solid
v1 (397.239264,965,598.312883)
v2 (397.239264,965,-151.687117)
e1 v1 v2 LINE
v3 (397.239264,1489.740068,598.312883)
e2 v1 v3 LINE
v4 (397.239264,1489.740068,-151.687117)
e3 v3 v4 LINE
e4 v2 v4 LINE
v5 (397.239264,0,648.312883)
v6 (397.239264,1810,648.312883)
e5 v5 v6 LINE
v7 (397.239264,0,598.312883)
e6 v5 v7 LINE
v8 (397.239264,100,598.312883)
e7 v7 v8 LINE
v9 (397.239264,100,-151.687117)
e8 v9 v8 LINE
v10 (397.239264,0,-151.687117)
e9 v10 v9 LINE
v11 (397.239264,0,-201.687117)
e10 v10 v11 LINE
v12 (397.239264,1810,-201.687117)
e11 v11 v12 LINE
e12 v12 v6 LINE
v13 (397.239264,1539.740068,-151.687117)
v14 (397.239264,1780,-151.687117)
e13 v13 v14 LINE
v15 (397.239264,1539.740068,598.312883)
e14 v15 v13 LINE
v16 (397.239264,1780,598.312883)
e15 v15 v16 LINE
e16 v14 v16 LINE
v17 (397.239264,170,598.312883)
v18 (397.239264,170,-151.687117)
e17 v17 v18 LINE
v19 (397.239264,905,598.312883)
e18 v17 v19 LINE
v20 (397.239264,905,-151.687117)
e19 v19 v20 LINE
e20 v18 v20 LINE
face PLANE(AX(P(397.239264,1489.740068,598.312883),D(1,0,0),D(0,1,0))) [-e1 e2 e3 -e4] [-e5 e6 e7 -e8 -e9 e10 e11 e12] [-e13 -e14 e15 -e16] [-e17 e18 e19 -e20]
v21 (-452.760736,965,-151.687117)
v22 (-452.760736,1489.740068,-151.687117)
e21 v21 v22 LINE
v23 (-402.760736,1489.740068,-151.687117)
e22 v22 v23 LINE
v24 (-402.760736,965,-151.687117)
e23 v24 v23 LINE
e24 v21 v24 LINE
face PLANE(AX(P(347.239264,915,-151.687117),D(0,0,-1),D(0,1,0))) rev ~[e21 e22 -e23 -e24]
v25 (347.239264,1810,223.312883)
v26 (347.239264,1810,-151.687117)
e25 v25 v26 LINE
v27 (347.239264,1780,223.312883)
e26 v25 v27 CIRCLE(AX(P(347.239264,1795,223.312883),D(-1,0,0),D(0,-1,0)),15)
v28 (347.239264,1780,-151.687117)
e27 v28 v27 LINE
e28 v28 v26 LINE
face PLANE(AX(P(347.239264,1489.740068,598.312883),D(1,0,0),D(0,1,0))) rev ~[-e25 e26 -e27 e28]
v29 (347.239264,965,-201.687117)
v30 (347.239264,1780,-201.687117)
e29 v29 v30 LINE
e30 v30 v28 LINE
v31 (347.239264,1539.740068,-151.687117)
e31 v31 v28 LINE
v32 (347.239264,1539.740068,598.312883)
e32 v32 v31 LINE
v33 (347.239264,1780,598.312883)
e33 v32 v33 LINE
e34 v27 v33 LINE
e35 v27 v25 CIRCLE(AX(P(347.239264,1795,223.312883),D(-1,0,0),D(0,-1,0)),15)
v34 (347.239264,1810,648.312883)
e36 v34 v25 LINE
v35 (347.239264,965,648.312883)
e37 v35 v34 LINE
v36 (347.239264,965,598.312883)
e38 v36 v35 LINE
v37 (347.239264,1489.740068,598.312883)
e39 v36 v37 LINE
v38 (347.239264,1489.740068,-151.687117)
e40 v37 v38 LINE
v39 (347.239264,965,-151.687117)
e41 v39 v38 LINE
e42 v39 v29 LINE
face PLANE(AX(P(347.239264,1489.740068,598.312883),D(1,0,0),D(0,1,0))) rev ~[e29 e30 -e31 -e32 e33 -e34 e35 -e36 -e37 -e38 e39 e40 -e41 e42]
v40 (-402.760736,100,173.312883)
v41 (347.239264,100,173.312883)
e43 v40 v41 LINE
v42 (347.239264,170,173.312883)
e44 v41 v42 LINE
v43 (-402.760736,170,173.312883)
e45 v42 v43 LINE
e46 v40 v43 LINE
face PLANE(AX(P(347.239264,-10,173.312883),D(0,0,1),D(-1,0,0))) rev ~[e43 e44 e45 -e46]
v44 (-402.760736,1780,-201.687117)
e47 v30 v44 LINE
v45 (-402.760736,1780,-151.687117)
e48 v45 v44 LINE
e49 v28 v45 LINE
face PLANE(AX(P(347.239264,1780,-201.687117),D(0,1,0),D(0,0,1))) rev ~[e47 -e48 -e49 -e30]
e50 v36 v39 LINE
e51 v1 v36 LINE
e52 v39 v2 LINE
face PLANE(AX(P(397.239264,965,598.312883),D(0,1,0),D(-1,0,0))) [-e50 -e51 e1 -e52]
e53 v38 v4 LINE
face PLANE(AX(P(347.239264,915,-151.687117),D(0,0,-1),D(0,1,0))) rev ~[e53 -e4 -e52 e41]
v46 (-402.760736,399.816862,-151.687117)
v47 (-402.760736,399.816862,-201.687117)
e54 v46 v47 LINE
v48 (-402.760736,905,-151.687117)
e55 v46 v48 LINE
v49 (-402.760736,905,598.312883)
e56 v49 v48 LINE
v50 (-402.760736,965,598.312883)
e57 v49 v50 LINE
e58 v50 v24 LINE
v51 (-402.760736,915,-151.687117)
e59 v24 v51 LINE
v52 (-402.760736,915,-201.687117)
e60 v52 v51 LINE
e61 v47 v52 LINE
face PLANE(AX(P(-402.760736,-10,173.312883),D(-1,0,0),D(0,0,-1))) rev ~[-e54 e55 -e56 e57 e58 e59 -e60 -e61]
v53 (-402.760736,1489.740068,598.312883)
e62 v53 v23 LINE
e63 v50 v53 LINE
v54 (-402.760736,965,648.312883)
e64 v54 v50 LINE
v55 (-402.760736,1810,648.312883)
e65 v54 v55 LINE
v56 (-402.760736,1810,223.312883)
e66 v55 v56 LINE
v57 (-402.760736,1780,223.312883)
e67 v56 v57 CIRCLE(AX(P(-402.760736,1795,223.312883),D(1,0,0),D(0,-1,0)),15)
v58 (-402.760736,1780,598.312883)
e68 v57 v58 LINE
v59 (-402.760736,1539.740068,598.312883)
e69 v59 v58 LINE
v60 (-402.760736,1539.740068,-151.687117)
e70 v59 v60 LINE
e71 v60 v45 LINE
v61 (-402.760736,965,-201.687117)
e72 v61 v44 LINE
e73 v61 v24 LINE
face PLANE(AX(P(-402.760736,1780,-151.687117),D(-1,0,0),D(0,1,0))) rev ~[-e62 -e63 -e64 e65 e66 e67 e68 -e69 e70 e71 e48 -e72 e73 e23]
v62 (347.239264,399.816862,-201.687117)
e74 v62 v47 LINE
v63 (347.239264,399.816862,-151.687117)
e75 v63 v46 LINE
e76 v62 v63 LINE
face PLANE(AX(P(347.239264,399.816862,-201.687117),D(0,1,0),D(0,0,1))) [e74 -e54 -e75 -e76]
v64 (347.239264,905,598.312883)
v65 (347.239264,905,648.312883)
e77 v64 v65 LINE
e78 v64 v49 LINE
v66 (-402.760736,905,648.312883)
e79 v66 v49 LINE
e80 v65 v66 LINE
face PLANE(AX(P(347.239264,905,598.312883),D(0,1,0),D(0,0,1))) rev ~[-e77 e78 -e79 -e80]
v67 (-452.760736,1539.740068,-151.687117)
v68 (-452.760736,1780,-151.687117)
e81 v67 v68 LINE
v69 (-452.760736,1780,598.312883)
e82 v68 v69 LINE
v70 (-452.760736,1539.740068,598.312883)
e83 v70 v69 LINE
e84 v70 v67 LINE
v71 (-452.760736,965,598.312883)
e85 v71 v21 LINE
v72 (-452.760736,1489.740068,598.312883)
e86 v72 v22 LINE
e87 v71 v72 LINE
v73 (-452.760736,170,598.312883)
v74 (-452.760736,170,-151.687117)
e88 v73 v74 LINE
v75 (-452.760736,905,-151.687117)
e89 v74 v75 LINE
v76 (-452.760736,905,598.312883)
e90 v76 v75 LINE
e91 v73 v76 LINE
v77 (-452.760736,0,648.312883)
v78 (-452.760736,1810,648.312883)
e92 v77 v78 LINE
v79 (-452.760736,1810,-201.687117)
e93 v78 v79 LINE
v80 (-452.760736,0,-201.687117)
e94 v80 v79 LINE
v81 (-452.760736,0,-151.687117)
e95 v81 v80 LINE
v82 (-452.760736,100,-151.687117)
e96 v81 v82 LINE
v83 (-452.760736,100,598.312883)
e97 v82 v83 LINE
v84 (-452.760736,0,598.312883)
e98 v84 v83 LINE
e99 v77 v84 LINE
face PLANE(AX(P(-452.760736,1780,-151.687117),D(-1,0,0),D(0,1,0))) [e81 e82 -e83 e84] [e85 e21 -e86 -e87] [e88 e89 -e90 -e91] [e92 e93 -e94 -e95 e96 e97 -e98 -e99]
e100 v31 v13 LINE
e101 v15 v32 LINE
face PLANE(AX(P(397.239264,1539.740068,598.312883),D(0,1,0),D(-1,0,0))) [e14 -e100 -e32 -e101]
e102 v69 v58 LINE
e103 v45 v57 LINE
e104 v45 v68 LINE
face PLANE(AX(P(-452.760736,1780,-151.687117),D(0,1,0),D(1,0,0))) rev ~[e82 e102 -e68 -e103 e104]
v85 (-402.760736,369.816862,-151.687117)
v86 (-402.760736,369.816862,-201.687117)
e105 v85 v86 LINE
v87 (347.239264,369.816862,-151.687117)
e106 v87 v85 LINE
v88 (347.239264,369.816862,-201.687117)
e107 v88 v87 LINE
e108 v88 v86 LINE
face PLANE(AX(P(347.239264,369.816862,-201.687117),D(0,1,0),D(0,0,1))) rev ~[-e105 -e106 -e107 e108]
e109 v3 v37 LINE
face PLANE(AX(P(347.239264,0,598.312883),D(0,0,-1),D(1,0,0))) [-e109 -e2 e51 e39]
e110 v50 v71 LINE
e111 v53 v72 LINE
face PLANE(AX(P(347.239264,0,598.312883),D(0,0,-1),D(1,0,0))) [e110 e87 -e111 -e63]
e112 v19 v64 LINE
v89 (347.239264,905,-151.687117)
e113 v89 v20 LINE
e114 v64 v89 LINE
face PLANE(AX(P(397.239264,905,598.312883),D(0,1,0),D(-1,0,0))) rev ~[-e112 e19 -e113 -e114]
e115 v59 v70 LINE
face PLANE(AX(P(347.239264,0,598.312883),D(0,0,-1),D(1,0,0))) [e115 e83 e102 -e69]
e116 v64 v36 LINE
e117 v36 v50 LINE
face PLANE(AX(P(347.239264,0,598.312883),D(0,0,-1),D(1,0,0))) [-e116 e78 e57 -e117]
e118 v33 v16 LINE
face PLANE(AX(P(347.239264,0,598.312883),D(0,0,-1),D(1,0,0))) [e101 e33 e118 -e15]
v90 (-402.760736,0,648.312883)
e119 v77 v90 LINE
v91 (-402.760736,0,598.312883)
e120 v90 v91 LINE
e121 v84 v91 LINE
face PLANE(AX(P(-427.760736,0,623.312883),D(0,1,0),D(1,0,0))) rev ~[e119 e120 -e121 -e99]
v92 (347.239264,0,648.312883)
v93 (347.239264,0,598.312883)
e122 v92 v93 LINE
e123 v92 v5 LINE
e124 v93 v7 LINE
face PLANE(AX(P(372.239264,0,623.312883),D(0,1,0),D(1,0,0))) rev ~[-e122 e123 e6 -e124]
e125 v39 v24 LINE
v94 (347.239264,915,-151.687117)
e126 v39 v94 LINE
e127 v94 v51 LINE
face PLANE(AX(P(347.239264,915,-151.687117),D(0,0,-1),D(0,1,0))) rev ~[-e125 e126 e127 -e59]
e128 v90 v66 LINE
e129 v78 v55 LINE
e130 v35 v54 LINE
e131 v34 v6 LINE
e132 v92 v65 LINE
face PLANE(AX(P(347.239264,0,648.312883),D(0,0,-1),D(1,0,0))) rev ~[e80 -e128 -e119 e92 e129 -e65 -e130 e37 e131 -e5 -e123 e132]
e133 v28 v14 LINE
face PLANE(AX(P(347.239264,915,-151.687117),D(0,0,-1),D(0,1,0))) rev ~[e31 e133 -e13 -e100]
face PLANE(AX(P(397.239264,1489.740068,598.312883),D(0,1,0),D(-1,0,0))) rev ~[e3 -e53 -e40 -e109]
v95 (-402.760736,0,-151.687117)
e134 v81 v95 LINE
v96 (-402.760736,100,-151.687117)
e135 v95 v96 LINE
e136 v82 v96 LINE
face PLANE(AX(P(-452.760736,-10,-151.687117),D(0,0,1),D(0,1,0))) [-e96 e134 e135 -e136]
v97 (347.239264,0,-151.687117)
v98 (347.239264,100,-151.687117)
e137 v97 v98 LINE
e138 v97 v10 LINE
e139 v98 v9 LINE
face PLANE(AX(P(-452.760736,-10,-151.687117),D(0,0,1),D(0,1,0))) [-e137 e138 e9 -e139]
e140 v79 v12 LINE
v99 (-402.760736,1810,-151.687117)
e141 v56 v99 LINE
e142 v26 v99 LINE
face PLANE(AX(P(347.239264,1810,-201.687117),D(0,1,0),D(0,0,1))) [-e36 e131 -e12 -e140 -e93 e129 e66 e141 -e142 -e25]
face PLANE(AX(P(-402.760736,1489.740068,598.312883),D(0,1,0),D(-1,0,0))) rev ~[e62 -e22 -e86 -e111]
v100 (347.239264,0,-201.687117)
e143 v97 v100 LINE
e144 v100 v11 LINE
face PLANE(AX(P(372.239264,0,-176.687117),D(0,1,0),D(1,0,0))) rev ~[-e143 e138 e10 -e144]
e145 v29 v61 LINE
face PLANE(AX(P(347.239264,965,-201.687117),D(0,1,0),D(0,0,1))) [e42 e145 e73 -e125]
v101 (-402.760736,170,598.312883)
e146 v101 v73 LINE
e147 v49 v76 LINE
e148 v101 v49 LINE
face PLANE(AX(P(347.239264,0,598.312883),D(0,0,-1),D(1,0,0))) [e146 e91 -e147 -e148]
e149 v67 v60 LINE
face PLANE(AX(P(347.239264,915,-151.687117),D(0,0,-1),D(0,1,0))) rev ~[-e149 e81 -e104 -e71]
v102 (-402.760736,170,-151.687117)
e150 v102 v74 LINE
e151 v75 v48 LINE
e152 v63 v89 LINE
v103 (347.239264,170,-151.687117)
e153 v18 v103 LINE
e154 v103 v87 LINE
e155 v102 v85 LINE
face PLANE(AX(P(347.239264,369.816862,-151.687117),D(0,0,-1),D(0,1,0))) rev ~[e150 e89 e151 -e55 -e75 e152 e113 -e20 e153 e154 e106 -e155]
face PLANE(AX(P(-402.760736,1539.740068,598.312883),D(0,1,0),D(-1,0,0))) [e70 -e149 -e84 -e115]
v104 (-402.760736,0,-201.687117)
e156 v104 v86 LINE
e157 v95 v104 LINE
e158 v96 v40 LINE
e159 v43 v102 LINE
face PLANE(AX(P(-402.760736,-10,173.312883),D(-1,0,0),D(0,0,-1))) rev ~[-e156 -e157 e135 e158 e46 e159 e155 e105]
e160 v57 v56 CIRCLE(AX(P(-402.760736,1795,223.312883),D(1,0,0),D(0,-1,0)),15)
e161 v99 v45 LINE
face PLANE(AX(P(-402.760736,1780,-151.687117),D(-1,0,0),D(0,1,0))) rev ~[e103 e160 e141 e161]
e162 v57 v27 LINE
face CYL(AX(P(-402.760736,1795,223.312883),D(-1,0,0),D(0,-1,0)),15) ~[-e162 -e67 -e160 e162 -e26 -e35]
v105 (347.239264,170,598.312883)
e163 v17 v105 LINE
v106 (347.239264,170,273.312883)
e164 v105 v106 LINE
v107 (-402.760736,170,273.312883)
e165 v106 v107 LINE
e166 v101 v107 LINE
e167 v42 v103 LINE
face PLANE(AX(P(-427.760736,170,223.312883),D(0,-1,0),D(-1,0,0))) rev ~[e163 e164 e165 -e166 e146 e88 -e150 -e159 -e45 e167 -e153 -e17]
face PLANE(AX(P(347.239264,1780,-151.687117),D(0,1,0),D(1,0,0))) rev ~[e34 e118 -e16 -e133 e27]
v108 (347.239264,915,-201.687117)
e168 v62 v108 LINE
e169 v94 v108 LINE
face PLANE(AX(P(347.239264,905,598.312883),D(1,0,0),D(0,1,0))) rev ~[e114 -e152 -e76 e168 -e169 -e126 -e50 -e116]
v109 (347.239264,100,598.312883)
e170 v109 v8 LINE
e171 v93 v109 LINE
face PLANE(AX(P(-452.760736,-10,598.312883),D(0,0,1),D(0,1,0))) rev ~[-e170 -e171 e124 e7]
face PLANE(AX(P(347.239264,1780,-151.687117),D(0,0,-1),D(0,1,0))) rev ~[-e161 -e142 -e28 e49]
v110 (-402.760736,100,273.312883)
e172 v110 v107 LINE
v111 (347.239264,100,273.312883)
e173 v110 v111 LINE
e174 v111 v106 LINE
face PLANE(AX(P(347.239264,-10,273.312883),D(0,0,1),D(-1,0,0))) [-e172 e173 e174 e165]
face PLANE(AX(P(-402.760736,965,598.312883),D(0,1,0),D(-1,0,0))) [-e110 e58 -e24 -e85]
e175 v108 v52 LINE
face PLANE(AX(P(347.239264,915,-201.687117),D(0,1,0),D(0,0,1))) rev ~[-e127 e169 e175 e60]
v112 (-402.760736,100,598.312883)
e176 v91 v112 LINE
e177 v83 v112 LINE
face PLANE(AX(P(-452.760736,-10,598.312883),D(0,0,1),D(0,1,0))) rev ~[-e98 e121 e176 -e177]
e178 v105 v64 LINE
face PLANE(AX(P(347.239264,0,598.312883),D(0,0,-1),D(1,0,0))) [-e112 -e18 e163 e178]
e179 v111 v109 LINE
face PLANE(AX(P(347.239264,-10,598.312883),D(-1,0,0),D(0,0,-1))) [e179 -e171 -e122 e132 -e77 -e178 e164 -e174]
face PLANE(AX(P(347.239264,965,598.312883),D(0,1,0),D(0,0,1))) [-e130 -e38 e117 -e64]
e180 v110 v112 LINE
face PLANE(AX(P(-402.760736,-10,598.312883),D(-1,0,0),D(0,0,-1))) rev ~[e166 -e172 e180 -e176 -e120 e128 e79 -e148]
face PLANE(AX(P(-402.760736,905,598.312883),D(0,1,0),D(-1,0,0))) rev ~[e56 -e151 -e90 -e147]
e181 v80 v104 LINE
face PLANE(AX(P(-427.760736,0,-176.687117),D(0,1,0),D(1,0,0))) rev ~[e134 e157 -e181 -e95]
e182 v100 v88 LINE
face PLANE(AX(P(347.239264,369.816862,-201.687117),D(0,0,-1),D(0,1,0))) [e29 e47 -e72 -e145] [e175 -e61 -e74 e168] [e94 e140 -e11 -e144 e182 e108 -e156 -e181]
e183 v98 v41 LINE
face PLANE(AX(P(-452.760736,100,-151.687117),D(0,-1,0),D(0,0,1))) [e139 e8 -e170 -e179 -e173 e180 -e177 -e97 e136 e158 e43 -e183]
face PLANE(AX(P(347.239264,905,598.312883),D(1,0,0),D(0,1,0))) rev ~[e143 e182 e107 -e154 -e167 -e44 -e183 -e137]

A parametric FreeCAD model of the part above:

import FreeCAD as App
import Part
import Sketcher

V = App.Vector

doc = App.newDocument("Part")
params = doc.addObject("Spreadsheet::Sheet", "Params")
for row, (alias, value) in enumerate([
    ("sketch1_width", "50 mm"),
    ("pad1_length", "1810 mm"),
    ("sketch2_width", "50 mm"),
    ("pad2_length", "1810 mm"),
    ("sketch3_width", "50 mm"),
    ("pad3_length", "1810 mm"),
    ("sketch4_width", "50 mm"),
    ("pad4_length", "1810 mm"),
    ("sketch5_width", "50 mm"),
    ("sketch5_width2", "750 mm"),
    ("sketch5_height", "325 mm"),
    ("pad5_length", "180 mm"),
    ("sketch6_width", "110 mm"),
    ("sketch6_height", "750 mm"),
    ("pocket1_length", "1050 mm"),
    ("sketch7_width", "50 mm"),
    ("sketch7_width2", "60 mm"),
    ("pad6_length", "770 mm"),
    ("sketch8_width", "50 mm"),
    ("sketch8_height", "60 mm"),
    ("pad7_length", "770 mm"),
    ("sketch9_width", "50 mm"),
    ("pad8_length", "770 mm"),
    ("sketch10_width", "50 mm"),
    ("sketch10_height", "30 mm"),
    ("pad9_length", "770 mm"),
    ("sketch11_diameter", "30 mm"),
    ("pad10_length", "770 mm"),
    ("sketch12_width", "30 mm"),
    ("sketch12_height", "50 mm"),
    ("pad11_length", "770 mm"),
    ("sketch13_width", "30 mm"),
    ("sketch13_height", "50 mm"),
    ("pad12_length", "770 mm"),
], start=1):
    params.set(f"A{row}", alias)
    params.set(f"B{row}", "=" + value)
    params.setAlias(f"B{row}", alias)

body = doc.addObject("PartDesign::Body", "Body")

# Sketch on XZ plane
sketch1 = doc.addObject("Sketcher::SketchObject", "Sketch")
body.addObject(sketch1)
sketch1.AttachmentSupport = (doc.XZ_Plane, [""])
sketch1.MapMode = "FlatFace"
sketch1.addGeometry([
    Part.LineSegment(V(-452.760736, 598.312883, 0), V(-452.760736, 648.312883, 0)),
    Part.LineSegment(V(-452.760736, 648.312883, 0), V(-402.760736, 648.312883, 0)),
    Part.LineSegment(V(-402.760736, 648.312883, 0), V(-402.760736, 598.312883, 0)),
    Part.LineSegment(V(-402.760736, 598.312883, 0), V(-452.760736, 598.312883, 0)),
], False)
sketch1.addConstraint([
    Sketcher.Constraint("Coincident", 0, 2, 1, 1),
    Sketcher.Constraint("Coincident", 1, 2, 2, 1),
    Sketcher.Constraint("Coincident", 2, 2, 3, 1),
    Sketcher.Constraint("Coincident", 3, 2, 0, 1),
    Sketcher.Constraint("Vertical", 0),
    Sketcher.Constraint("Horizontal", 1),
    Sketcher.Constraint("Vertical", 2),
    Sketcher.Constraint("Horizontal", 3),
    Sketcher.Constraint("Equal", 3, 0),
    Sketcher.Constraint("DistanceX", 1, 1, 1, 2, 50.0),
    Sketcher.Constraint("DistanceX", 0, 2, -1, 1, 452.760736),
    Sketcher.Constraint("DistanceY", -1, 1, 0, 2, 648.312883),
])
sketch1.setExpression("Constraints[9]", "Params.sketch1_width")
pad1 = doc.addObject("PartDesign::Pad", "Pad")
body.addObject(pad1)
pad1.Profile = sketch1
pad1.setExpression("Length", "Params.pad1_length")
pad1.Reversed = True
body2 = doc.addObject("PartDesign::Body", "Body001")

# Sketch on XZ plane
sketch2 = doc.addObject("Sketcher::SketchObject", "Sketch001")
body2.addObject(sketch2)
sketch2.AttachmentSupport = (doc.getObject("XZ_Plane001"), [""])
sketch2.MapMode = "FlatFace"
sketch2.addGeometry([
    Part.LineSegment(V(347.239264, 598.312883, 0), V(347.239264, 648.312883, 0)),
    Part.LineSegment(V(347.239264, 648.312883, 0), V(397.239264, 648.312883, 0)),
    Part.LineSegment(V(397.239264, 648.312883, 0), V(397.239264, 598.312883, 0)),
    Part.LineSegment(V(397.239264, 598.312883, 0), V(347.239264, 598.312883, 0)),
], False)
sketch2.addConstraint([
    Sketcher.Constraint("Coincident", 0, 2, 1, 1),
    Sketcher.Constraint("Coincident", 1, 2, 2, 1),
    Sketcher.Constraint("Coincident", 2, 2, 3, 1),
    Sketcher.Constraint("Coincident", 3, 2, 0, 1),
    Sketcher.Constraint("Vertical", 0),
    Sketcher.Constraint("Horizontal", 1),
    Sketcher.Constraint("Vertical", 2),
    Sketcher.Constraint("Horizontal", 3),
    Sketcher.Constraint("Equal", 3, 0),
    Sketcher.Constraint("DistanceX", 1, 1, 1, 2, 50.0),
    Sketcher.Constraint("DistanceX", -1, 1, 0, 2, 347.239264),
    Sketcher.Constraint("DistanceY", -1, 1, 0, 2, 648.312883),
])
sketch2.setExpression("Constraints[9]", "Params.sketch2_width")
pad2 = doc.addObject("PartDesign::Pad", "Pad001")
body2.addObject(pad2)
pad2.Profile = sketch2
pad2.setExpression("Length", "Params.pad2_length")
pad2.Reversed = True
body3 = doc.addObject("PartDesign::Body", "Body002")

# Sketch on XZ plane
sketch3 = doc.addObject("Sketcher::SketchObject", "Sketch002")
body3.addObject(sketch3)
sketch3.AttachmentSupport = (doc.getObject("XZ_Plane002"), [""])
sketch3.MapMode = "FlatFace"
sketch3.addGeometry([
    Part.LineSegment(V(347.239264, -201.687117, 0), V(347.239264, -151.687117, 0)),
    Part.LineSegment(V(347.239264, -151.687117, 0), V(397.239264, -151.687117, 0)),
    Part.LineSegment(V(397.239264, -151.687117, 0), V(397.239264, -201.687117, 0)),
    Part.LineSegment(V(397.239264, -201.687117, 0), V(347.239264, -201.687117, 0)),
], False)
sketch3.addConstraint([
    Sketcher.Constraint("Coincident", 0, 2, 1, 1),
    Sketcher.Constraint("Coincident", 1, 2, 2, 1),
    Sketcher.Constraint("Coincident", 2, 2, 3, 1),
    Sketcher.Constraint("Coincident", 3, 2, 0, 1),
    Sketcher.Constraint("Vertical", 0),
    Sketcher.Constraint("Horizontal", 1),
    Sketcher.Constraint("Vertical", 2),
    Sketcher.Constraint("Horizontal", 3),
    Sketcher.Constraint("Equal", 3, 0),
    Sketcher.Constraint("DistanceX", 1, 1, 1, 2, 50.0),
    Sketcher.Constraint("DistanceX", -1, 1, 0, 2, 347.239264),
    Sketcher.Constraint("DistanceY", 0, 2, -1, 1, 151.687117),
])
sketch3.setExpression("Constraints[9]", "Params.sketch3_width")
pad3 = doc.addObject("PartDesign::Pad", "Pad002")
body3.addObject(pad3)
pad3.Profile = sketch3
pad3.setExpression("Length", "Params.pad3_length")
pad3.Reversed = True
body4 = doc.addObject("PartDesign::Body", "Body003")

# Sketch on XZ plane
sketch4 = doc.addObject("Sketcher::SketchObject", "Sketch003")
body4.addObject(sketch4)
sketch4.AttachmentSupport = (doc.getObject("XZ_Plane003"), [""])
sketch4.MapMode = "FlatFace"
sketch4.addGeometry([
    Part.LineSegment(V(-452.760736, -201.687117, 0), V(-452.760736, -151.687117, 0)),
    Part.LineSegment(V(-452.760736, -151.687117, 0), V(-402.760736, -151.687117, 0)),
    Part.LineSegment(V(-402.760736, -151.687117, 0), V(-402.760736, -201.687117, 0)),
    Part.LineSegment(V(-402.760736, -201.687117, 0), V(-452.760736, -201.687117, 0)),
], False)
sketch4.addConstraint([
    Sketcher.Constraint("Coincident", 0, 2, 1, 1),
    Sketcher.Constraint("Coincident", 1, 2, 2, 1),
    Sketcher.Constraint("Coincident", 2, 2, 3, 1),
    Sketcher.Constraint("Coincident", 3, 2, 0, 1),
    Sketcher.Constraint("Vertical", 0),
    Sketcher.Constraint("Horizontal", 1),
    Sketcher.Constraint("Vertical", 2),
    Sketcher.Constraint("Horizontal", 3),
    Sketcher.Constraint("Equal", 3, 0),
    Sketcher.Constraint("DistanceX", 1, 1, 1, 2, 50.0),
    Sketcher.Constraint("DistanceX", 0, 2, -1, 1, 452.760736),
    Sketcher.Constraint("DistanceY", 0, 2, -1, 1, 151.687117),
])
sketch4.setExpression("Constraints[9]", "Params.sketch4_width")
pad4 = doc.addObject("PartDesign::Pad", "Pad003")
body4.addObject(pad4)
pad4.Profile = sketch4
pad4.setExpression("Length", "Params.pad4_length")
pad4.Reversed = True
body.AllowCompound = True
doc.recompute()

boolean = doc.addObject("PartDesign::Boolean", "Boolean")
body.addObject(boolean)
boolean.Type = "Fuse"
boolean.addObjects([body2])
doc.recompute()

boolean2 = doc.addObject("PartDesign::Boolean", "Boolean001")
body.addObject(boolean2)
boolean2.Type = "Fuse"
boolean2.addObjects([body3])
doc.recompute()

boolean3 = doc.addObject("PartDesign::Boolean", "Boolean002")
body.addObject(boolean3)
boolean3.Type = "Fuse"
boolean3.addObjects([body4])

# Sketch on XZ plane
sketch5 = doc.addObject("Sketcher::SketchObject", "Sketch004")
body.addObject(sketch5)
sketch5.AttachmentSupport = (doc.XZ_Plane, [""])
sketch5.MapMode = "FlatFace"
sketch5.AttachmentOffset = App.Placement(V(0, 0, 10), App.Rotation())
sketch5.addGeometry([
    Part.LineSegment(V(-402.760736, 273.312883, 0), V(-402.760736, 598.312883, 0)),  # 0
    Part.LineSegment(V(-402.760736, 598.312883, 0), V(-452.760736, 598.312883, 0)),  # 1
    Part.LineSegment(V(-452.760736, 598.312883, 0), V(-452.760736, -151.687117, 0)),  # 2
    Part.LineSegment(V(-452.760736, -151.687117, 0), V(-402.760736, -151.687117, 0)),  # 3
    Part.LineSegment(V(-402.760736, -151.687117, 0), V(-402.760736, 173.312883, 0)),  # 4
    Part.LineSegment(V(-402.760736, 173.312883, 0), V(347.239264, 173.312883, 0)),  # 5
    Part.LineSegment(V(347.239264, 173.312883, 0), V(347.239264, -151.687117, 0)),  # 6
    Part.LineSegment(V(347.239264, -151.687117, 0), V(397.239264, -151.687117, 0)),  # 7
    Part.LineSegment(V(397.239264, -151.687117, 0), V(397.239264, 598.312883, 0)),  # 8
    Part.LineSegment(V(397.239264, 598.312883, 0), V(347.239264, 598.312883, 0)),  # 9
    Part.LineSegment(V(347.239264, 598.312883, 0), V(347.239264, 273.312883, 0)),  # 10
    Part.LineSegment(V(347.239264, 273.312883, 0), V(-402.760736, 273.312883, 0)),  # 11
], False)
sketch5.addConstraint([
    Sketcher.Constraint("Coincident", 0, 2, 1, 1),
    Sketcher.Constraint("Coincident", 1, 2, 2, 1),
    Sketcher.Constraint("Coincident", 2, 2, 3, 1),
    Sketcher.Constraint("Coincident", 3, 2, 4, 1),
    Sketcher.Constraint("Coincident", 4, 2, 5, 1),
    Sketcher.Constraint("Coincident", 5, 2, 6, 1),
    Sketcher.Constraint("Coincident", 6, 2, 7, 1),
    Sketcher.Constraint("Coincident", 7, 2, 8, 1),
    Sketcher.Constraint("Coincident", 8, 2, 9, 1),
    Sketcher.Constraint("Coincident", 9, 2, 10, 1),
    Sketcher.Constraint("Coincident", 10, 2, 11, 1),
    Sketcher.Constraint("Coincident", 11, 2, 0, 1),
    Sketcher.Constraint("Vertical", 0),
    Sketcher.Constraint("Horizontal", 1),
    Sketcher.Constraint("Vertical", 2),
    Sketcher.Constraint("Horizontal", 3),
    Sketcher.Constraint("Vertical", 4),
    Sketcher.Constraint("Horizontal", 5),
    Sketcher.Constraint("Vertical", 6),
    Sketcher.Constraint("Horizontal", 7),
    Sketcher.Constraint("Vertical", 8),
    Sketcher.Constraint("Horizontal", 9),
    Sketcher.Constraint("Vertical", 10),
    Sketcher.Constraint("Horizontal", 11),
    Sketcher.Constraint("Horizontal", 3, 2, 6, 2),
    Sketcher.Constraint("Horizontal", 1, 2, 8, 2),
    Sketcher.Constraint("Vertical", 0, 2, 3, 2),
    Sketcher.Constraint("Vertical", 6, 2, 9, 2),
    Sketcher.Constraint("Equal", 3, 7),
    Sketcher.Constraint("Equal", 11, 2),
    Sketcher.Constraint("Equal", 0, 4),
    Sketcher.Constraint("DistanceX", 1, 2, 1, 1, 50.0),
    Sketcher.Constraint("DistanceX", 5, 1, 5, 2, 750.0),
    Sketcher.Constraint("DistanceY", 0, 1, 0, 2, 325.0),
    Sketcher.Constraint("DistanceX", 0, 2, -1, 1, 402.760736),
    Sketcher.Constraint("DistanceY", -1, 1, 0, 2, 598.312883),
])
sketch5.setExpression("Constraints[31]", "Params.sketch5_width")
sketch5.setExpression("Constraints[32]", "Params.sketch5_width2")
sketch5.setExpression("Constraints[33]", "Params.sketch5_height")
pad5 = doc.addObject("PartDesign::Pad", "Pad004")
body.addObject(pad5)
pad5.Profile = sketch5
pad5.setExpression("Length", "Params.pad5_length")
pad5.Reversed = True

# Sketch on YZ plane
sketch6 = doc.addObject("Sketcher::SketchObject", "Sketch005")
body.addObject(sketch6)
sketch6.AttachmentSupport = (doc.YZ_Plane, [""])
sketch6.MapMode = "FlatFace"
sketch6.AttachmentOffset = App.Placement(V(0, 0, -452.760736), App.Rotation())
sketch6.addGeometry([
    Part.LineSegment(V(100, -151.687117, 0), V(-10, -151.687117, 0)),
    Part.LineSegment(V(-10, -151.687117, 0), V(-10, 598.312883, 0)),
    Part.LineSegment(V(-10, 598.312883, 0), V(100, 598.312883, 0)),
    Part.LineSegment(V(100, 598.312883, 0), V(100, -151.687117, 0)),
], False)
sketch6.addConstraint([
    Sketcher.Constraint("Coincident", 0, 2, 1, 1),
    Sketcher.Constraint("Coincident", 1, 2, 2, 1),
    Sketcher.Constraint("Coincident", 2, 2, 3, 1),
    Sketcher.Constraint("Coincident", 3, 2, 0, 1),
    Sketcher.Constraint("Horizontal", 0),
    Sketcher.Constraint("Vertical", 1),
    Sketcher.Constraint("Horizontal", 2),
    Sketcher.Constraint("Vertical", 3),
    Sketcher.Constraint("DistanceX", 0, 2, 0, 1, 110.0),
    Sketcher.Constraint("DistanceY", 1, 1, 1, 2, 750.0),
    Sketcher.Constraint("DistanceX", 0, 2, -1, 1, 10.0),
    Sketcher.Constraint("DistanceY", 0, 2, -1, 1, 151.687117),
])
sketch6.setExpression("Constraints[8]", "Params.sketch6_width")
sketch6.setExpression("Constraints[9]", "Params.sketch6_height")
pocket1 = doc.addObject("PartDesign::Pocket", "Pocket")
body.addObject(pocket1)
pocket1.Profile = sketch6
pocket1.setExpression("Length", "Params.pocket1_length")
pocket1.Reversed = True

# Sketch on YZ plane
sketch7 = doc.addObject("Sketcher::SketchObject", "Sketch006")
body.addObject(sketch7)
sketch7.AttachmentSupport = (doc.YZ_Plane, [""])
sketch7.MapMode = "FlatFace"
sketch7.AttachmentOffset = App.Placement(V(0, 0, 347.239264), App.Rotation())
sketch7.addGeometry([
    Part.LineSegment(V(965, -201.687117, 0), V(915, -201.687117, 0)),  # 0
    Part.LineSegment(V(915, -201.687117, 0), V(915, -151.687117, 0)),  # 1
    Part.LineSegment(V(915, -151.687117, 0), V(965, -151.687117, 0)),  # 2
    Part.LineSegment(V(965, -151.687117, 0), V(965, -201.687117, 0)),  # 3
    Part.LineSegment(V(965, 598.312883, 0), V(905, 598.312883, 0)),  # 4
    Part.LineSegment(V(905, 598.312883, 0), V(905, 648.312883, 0)),  # 5
    Part.LineSegment(V(905, 648.312883, 0), V(965, 648.312883, 0)),  # 6
    Part.LineSegment(V(965, 648.312883, 0), V(965, 598.312883, 0)),  # 7
], False)
sketch7.addConstraint([
    Sketcher.Constraint("Coincident", 0, 2, 1, 1),
    Sketcher.Constraint("Coincident", 1, 2, 2, 1),
    Sketcher.Constraint("Coincident", 2, 2, 3, 1),
    Sketcher.Constraint("Coincident", 3, 2, 0, 1),
    Sketcher.Constraint("Coincident", 4, 2, 5, 1),
    Sketcher.Constraint("Coincident", 5, 2, 6, 1),
    Sketcher.Constraint("Coincident", 6, 2, 7, 1),
    Sketcher.Constraint("Coincident", 7, 2, 4, 1),
    Sketcher.Constraint("Horizontal", 0),
    Sketcher.Constraint("Vertical", 1),
    Sketcher.Constraint("Horizontal", 2),
    Sketcher.Constraint("Vertical", 3),
    Sketcher.Constraint("Horizontal", 4),
    Sketcher.Constraint("Vertical", 5),
    Sketcher.Constraint("Horizontal", 6),
    Sketcher.Constraint("Vertical", 7),
    Sketcher.Constraint("Vertical", 3, 2, 6, 2),
    Sketcher.Constraint("Equal", 2, 1),
    Sketcher.Constraint("Equal", 3, 5),
    Sketcher.Constraint("DistanceX", 0, 2, 0, 1, 50.0),
    Sketcher.Constraint("DistanceX", 4, 2, 4, 1, 60.0),
    Sketcher.Constraint("DistanceX", -1, 1, 0, 2, 915.0),
    Sketcher.Constraint("DistanceY", 1, 2, 4, 2, 750.0),
    Sketcher.Constraint("DistanceY", 0, 2, -1, 1, 201.687117),
])
sketch7.setExpression("Constraints[19]", "Params.sketch7_width")
sketch7.setExpression("Constraints[20]", "Params.sketch7_width2")
pad6 = doc.addObject("PartDesign::Pad", "Pad005")
body.addObject(pad6)
pad6.Profile = sketch7
pad6.setExpression("Length", "Params.pad6_length")
pad6.Reversed = True

# Sketch on XY plane
sketch8 = doc.addObject("Sketcher::SketchObject", "Sketch007")
body.addObject(sketch8)
sketch8.AttachmentSupport = (doc.XY_Plane, [""])
sketch8.MapMode = "FlatFace"
sketch8.AttachmentOffset = App.Placement(V(0, 0, 598.312883), App.Rotation())
sketch8.addGeometry([
    Part.LineSegment(V(397.239264, 965, 0), V(397.239264, 905, 0)),  # 0
    Part.LineSegment(V(397.239264, 905, 0), V(347.239264, 905, 0)),  # 1
    Part.LineSegment(V(347.239264, 905, 0), V(347.239264, 965, 0)),  # 2
    Part.LineSegment(V(347.239264, 965, 0), V(397.239264, 965, 0)),  # 3
    Part.LineSegment(V(-402.760736, 965, 0), V(-402.760736, 905, 0)),  # 4
    Part.LineSegment(V(-402.760736, 905, 0), V(-452.760736, 905, 0)),  # 5
    Part.LineSegment(V(-452.760736, 905, 0), V(-452.760736, 965, 0)),  # 6
    Part.LineSegment(V(-452.760736, 965, 0), V(-402.760736, 965, 0)),  # 7
], False)
sketch8.addConstraint([
    Sketcher.Constraint("Coincident", 0, 2, 1, 1),
    Sketcher.Constraint("Coincident", 1, 2, 2, 1),
    Sketcher.Constraint("Coincident", 2, 2, 3, 1),
    Sketcher.Constraint("Coincident", 3, 2, 0, 1),
    Sketcher.Constraint("Coincident", 4, 2, 5, 1),
    Sketcher.Constraint("Coincident", 5, 2, 6, 1),
    Sketcher.Constraint("Coincident", 6, 2, 7, 1),
    Sketcher.Constraint("Coincident", 7, 2, 4, 1),
    Sketcher.Constraint("Vertical", 0),
    Sketcher.Constraint("Horizontal", 1),
    Sketcher.Constraint("Vertical", 2),
    Sketcher.Constraint("Horizontal", 3),
    Sketcher.Constraint("Vertical", 4),
    Sketcher.Constraint("Horizontal", 5),
    Sketcher.Constraint("Vertical", 6),
    Sketcher.Constraint("Horizontal", 7),
    Sketcher.Constraint("Horizontal", 1, 2, 4, 2),
    Sketcher.Constraint("Horizontal", 3, 2, 6, 2),
    Sketcher.Constraint("Equal", 3, 5),
    Sketcher.Constraint("DistanceX", 1, 2, 1, 1, 50.0),
    Sketcher.Constraint("DistanceY", 0, 2, 0, 1, 60.0),
    Sketcher.Constraint("DistanceY", -1, 1, 0, 2, 905.0),
    Sketcher.Constraint("DistanceX", 4, 2, 1, 2, 750.0),
    Sketcher.Constraint("DistanceX", -1, 1, 0, 2, 397.239264),
])
sketch8.setExpression("Constraints[19]", "Params.sketch8_width")
sketch8.setExpression("Constraints[20]", "Params.sketch8_height")
pad7 = doc.addObject("PartDesign::Pad", "Pad006")
body.addObject(pad7)
pad7.Profile = sketch8
pad7.setExpression("Length", "Params.pad7_length")
pad7.Reversed = True

# Sketch on XY plane
sketch9 = doc.addObject("Sketcher::SketchObject", "Sketch008")
body.addObject(sketch9)
sketch9.AttachmentSupport = (doc.XY_Plane, [""])
sketch9.MapMode = "FlatFace"
sketch9.AttachmentOffset = App.Placement(V(0, 0, 598.312883), App.Rotation())
sketch9.addGeometry([
    Part.LineSegment(V(397.239264, 1539.740068, 0), V(397.239264, 1489.740068, 0)),  # 0
    Part.LineSegment(V(397.239264, 1489.740068, 0), V(347.239264, 1489.740068, 0)),  # 1
    Part.LineSegment(V(347.239264, 1489.740068, 0), V(347.239264, 1539.740068, 0)),  # 2
    Part.LineSegment(V(347.239264, 1539.740068, 0), V(397.239264, 1539.740068, 0)),  # 3
    Part.LineSegment(V(-402.760736, 1539.740068, 0), V(-402.760736, 1489.740068, 0)),  # 4
    Part.LineSegment(V(-402.760736, 1489.740068, 0), V(-452.760736, 1489.740068, 0)),  # 5
    Part.LineSegment(V(-452.760736, 1489.740068, 0), V(-452.760736, 1539.740068, 0)),  # 6
    Part.LineSegment(V(-452.760736, 1539.740068, 0), V(-402.760736, 1539.740068, 0)),  # 7
], False)
sketch9.addConstraint([
    Sketcher.Constraint("Coincident", 0, 2, 1, 1),
    Sketcher.Constraint("Coincident", 1, 2, 2, 1),
    Sketcher.Constraint("Coincident", 2, 2, 3, 1),
    Sketcher.Constraint("Coincident", 3, 2, 0, 1),
    Sketcher.Constraint("Coincident", 4, 2, 5, 1),
    Sketcher.Constraint("Coincident", 5, 2, 6, 1),
    Sketcher.Constraint("Coincident", 6, 2, 7, 1),
    Sketcher.Constraint("Coincident", 7, 2, 4, 1),
    Sketcher.Constraint("Vertical", 0),
    Sketcher.Constraint("Horizontal", 1),
    Sketcher.Constraint("Vertical", 2),
    Sketcher.Constraint("Horizontal", 3),
    Sketcher.Constraint("Vertical", 4),
    Sketcher.Constraint("Horizontal", 5),
    Sketcher.Constraint("Vertical", 6),
    Sketcher.Constraint("Horizontal", 7),
    Sketcher.Constraint("Horizontal", 1, 2, 4, 2),
    Sketcher.Constraint("Horizontal", 3, 2, 6, 2),
    Sketcher.Constraint("Equal", 3, 5),
    Sketcher.Constraint("Equal", 7, 0),
    Sketcher.Constraint("DistanceX", 1, 2, 1, 1, 50.0),
    Sketcher.Constraint("DistanceX", 4, 2, 1, 2, 750.0),
    Sketcher.Constraint("DistanceX", -1, 1, 0, 2, 397.239264),
    Sketcher.Constraint("DistanceY", -1, 1, 0, 2, 1489.740068),
])
sketch9.setExpression("Constraints[20]", "Params.sketch9_width")
pad8 = doc.addObject("PartDesign::Pad", "Pad007")
body.addObject(pad8)
pad8.Profile = sketch9
pad8.setExpression("Length", "Params.pad8_length")
pad8.Reversed = True

# Sketch on XY plane
sketch10 = doc.addObject("Sketcher::SketchObject", "Sketch009")
body.addObject(sketch10)
sketch10.AttachmentSupport = (doc.XY_Plane, [""])
sketch10.MapMode = "FlatFace"
sketch10.AttachmentOffset = App.Placement(V(0, 0, -151.687117), App.Rotation())
sketch10.addGeometry([
    Part.LineSegment(V(-452.760736, 1810, 0), V(-452.760736, 1780, 0)),  # 0
    Part.LineSegment(V(-452.760736, 1780, 0), V(-402.760736, 1780, 0)),  # 1
    Part.LineSegment(V(-402.760736, 1780, 0), V(-402.760736, 1810, 0)),  # 2
    Part.LineSegment(V(-402.760736, 1810, 0), V(-452.760736, 1810, 0)),  # 3
    Part.LineSegment(V(347.239264, 1810, 0), V(347.239264, 1780, 0)),  # 4
    Part.LineSegment(V(347.239264, 1780, 0), V(397.239264, 1780, 0)),  # 5
    Part.LineSegment(V(397.239264, 1780, 0), V(397.239264, 1810, 0)),  # 6
    Part.LineSegment(V(397.239264, 1810, 0), V(347.239264, 1810, 0)),  # 7
], False)
sketch10.addConstraint([
    Sketcher.Constraint("Coincident", 0, 2, 1, 1),
    Sketcher.Constraint("Coincident", 1, 2, 2, 1),
    Sketcher.Constraint("Coincident", 2, 2, 3, 1),
    Sketcher.Constraint("Coincident", 3, 2, 0, 1),
    Sketcher.Constraint("Coincident", 4, 2, 5, 1),
    Sketcher.Constraint("Coincident", 5, 2, 6, 1),
    Sketcher.Constraint("Coincident", 6, 2, 7, 1),
    Sketcher.Constraint("Coincident", 7, 2, 4, 1),
    Sketcher.Constraint("Vertical", 0),
    Sketcher.Constraint("Horizontal", 1),
    Sketcher.Constraint("Vertical", 2),
    Sketcher.Constraint("Horizontal", 3),
    Sketcher.Constraint("Vertical", 4),
    Sketcher.Constraint("Horizontal", 5),
    Sketcher.Constraint("Vertical", 6),
    Sketcher.Constraint("Horizontal", 7),
    Sketcher.Constraint("Horizontal", 1, 2, 4, 2),
    Sketcher.Constraint("Horizontal", 3, 2, 6, 2),
    Sketcher.Constraint("Equal", 3, 5),
    Sketcher.Constraint("DistanceX", 1, 1, 1, 2, 50.0),
    Sketcher.Constraint("DistanceY", 0, 2, 0, 1, 30.0),
    Sketcher.Constraint("DistanceY", -1, 1, 0, 2, 1780.0),
    Sketcher.Constraint("DistanceX", 1, 2, 4, 2, 750.0),
    Sketcher.Constraint("DistanceX", 0, 2, -1, 1, 452.760736),
])
sketch10.setExpression("Constraints[19]", "Params.sketch10_width")
sketch10.setExpression("Constraints[20]", "Params.sketch10_height")
pad9 = doc.addObject("PartDesign::Pad", "Pad008")
body.addObject(pad9)
pad9.Profile = sketch10
pad9.setExpression("Length", "Params.pad9_length")

# Sketch on YZ plane
sketch11 = doc.addObject("Sketcher::SketchObject", "Sketch010")
body.addObject(sketch11)
sketch11.AttachmentSupport = (doc.YZ_Plane, [""])
sketch11.MapMode = "FlatFace"
sketch11.AttachmentOffset = App.Placement(V(0, 0, -402.760736), App.Rotation())
sketch11.addGeometry(Part.Circle(V(1795, 223.312883, 0), V(0, 0, 1), 15), False)
sketch11.addConstraint([
    Sketcher.Constraint("Diameter", 0, 30.0),
    Sketcher.Constraint("DistanceX", -1, 1, 0, 3, 1795.0),
    Sketcher.Constraint("DistanceY", -1, 1, 0, 3, 223.312883),
])
sketch11.setExpression("Constraints[0]", "Params.sketch11_diameter")
pad10 = doc.addObject("PartDesign::Pad", "Pad009")
body.addObject(pad10)
pad10.Profile = sketch11
pad10.setExpression("Length", "Params.pad10_length")

# Sketch on YZ plane
sketch12 = doc.addObject("Sketcher::SketchObject", "Sketch011")
body.addObject(sketch12)
sketch12.AttachmentSupport = (doc.YZ_Plane, [""])
sketch12.MapMode = "FlatFace"
sketch12.AttachmentOffset = App.Placement(V(0, 0, 347.239264), App.Rotation())
sketch12.addGeometry([
    Part.LineSegment(V(1810, -201.687117, 0), V(1780, -201.687117, 0)),
    Part.LineSegment(V(1780, -201.687117, 0), V(1780, -151.687117, 0)),
    Part.LineSegment(V(1780, -151.687117, 0), V(1810, -151.687117, 0)),
    Part.LineSegment(V(1810, -151.687117, 0), V(1810, -201.687117, 0)),
], False)
sketch12.addConstraint([
    Sketcher.Constraint("Coincident", 0, 2, 1, 1),
    Sketcher.Constraint("Coincident", 1, 2, 2, 1),
    Sketcher.Constraint("Coincident", 2, 2, 3, 1),
    Sketcher.Constraint("Coincident", 3, 2, 0, 1),
    Sketcher.Constraint("Horizontal", 0),
    Sketcher.Constraint("Vertical", 1),
    Sketcher.Constraint("Horizontal", 2),
    Sketcher.Constraint("Vertical", 3),
    Sketcher.Constraint("DistanceX", 0, 2, 0, 1, 30.0),
    Sketcher.Constraint("DistanceY", 1, 1, 1, 2, 50.0),
    Sketcher.Constraint("DistanceX", -1, 1, 0, 2, 1780.0),
    Sketcher.Constraint("DistanceY", 0, 2, -1, 1, 201.687117),
])
sketch12.setExpression("Constraints[8]", "Params.sketch12_width")
sketch12.setExpression("Constraints[9]", "Params.sketch12_height")
pad11 = doc.addObject("PartDesign::Pad", "Pad010")
body.addObject(pad11)
pad11.Profile = sketch12
pad11.setExpression("Length", "Params.pad11_length")
pad11.Reversed = True

# Sketch on YZ plane
sketch13 = doc.addObject("Sketcher::SketchObject", "Sketch012")
body.addObject(sketch13)
sketch13.AttachmentSupport = (doc.YZ_Plane, [""])
sketch13.MapMode = "FlatFace"
sketch13.AttachmentOffset = App.Placement(V(0, 0, 347.239264), App.Rotation())
sketch13.addGeometry([
    Part.LineSegment(V(399.816862, -201.687117, 0), V(369.816862, -201.687117, 0)),
    Part.LineSegment(V(369.816862, -201.687117, 0), V(369.816862, -151.687117, 0)),
    Part.LineSegment(V(369.816862, -151.687117, 0), V(399.816862, -151.687117, 0)),
    Part.LineSegment(V(399.816862, -151.687117, 0), V(399.816862, -201.687117, 0)),
], False)
sketch13.addConstraint([
    Sketcher.Constraint("Coincident", 0, 2, 1, 1),
    Sketcher.Constraint("Coincident", 1, 2, 2, 1),
    Sketcher.Constraint("Coincident", 2, 2, 3, 1),
    Sketcher.Constraint("Coincident", 3, 2, 0, 1),
    Sketcher.Constraint("Horizontal", 0),
    Sketcher.Constraint("Vertical", 1),
    Sketcher.Constraint("Horizontal", 2),
    Sketcher.Constraint("Vertical", 3),
    Sketcher.Constraint("DistanceX", 0, 2, 0, 1, 30.0),
    Sketcher.Constraint("DistanceY", 1, 1, 1, 2, 50.0),
    Sketcher.Constraint("DistanceX", -1, 1, 0, 2, 369.816862),
    Sketcher.Constraint("DistanceY", 0, 2, -1, 1, 201.687117),
])
sketch13.setExpression("Constraints[8]", "Params.sketch13_width")
sketch13.setExpression("Constraints[9]", "Params.sketch13_height")
pad12 = doc.addObject("PartDesign::Pad", "Pad011")
body.addObject(pad12)
pad12.Profile = sketch13
pad12.setExpression("Length", "Params.pad12_length")
pad12.Reversed = True

doc.recompute()
